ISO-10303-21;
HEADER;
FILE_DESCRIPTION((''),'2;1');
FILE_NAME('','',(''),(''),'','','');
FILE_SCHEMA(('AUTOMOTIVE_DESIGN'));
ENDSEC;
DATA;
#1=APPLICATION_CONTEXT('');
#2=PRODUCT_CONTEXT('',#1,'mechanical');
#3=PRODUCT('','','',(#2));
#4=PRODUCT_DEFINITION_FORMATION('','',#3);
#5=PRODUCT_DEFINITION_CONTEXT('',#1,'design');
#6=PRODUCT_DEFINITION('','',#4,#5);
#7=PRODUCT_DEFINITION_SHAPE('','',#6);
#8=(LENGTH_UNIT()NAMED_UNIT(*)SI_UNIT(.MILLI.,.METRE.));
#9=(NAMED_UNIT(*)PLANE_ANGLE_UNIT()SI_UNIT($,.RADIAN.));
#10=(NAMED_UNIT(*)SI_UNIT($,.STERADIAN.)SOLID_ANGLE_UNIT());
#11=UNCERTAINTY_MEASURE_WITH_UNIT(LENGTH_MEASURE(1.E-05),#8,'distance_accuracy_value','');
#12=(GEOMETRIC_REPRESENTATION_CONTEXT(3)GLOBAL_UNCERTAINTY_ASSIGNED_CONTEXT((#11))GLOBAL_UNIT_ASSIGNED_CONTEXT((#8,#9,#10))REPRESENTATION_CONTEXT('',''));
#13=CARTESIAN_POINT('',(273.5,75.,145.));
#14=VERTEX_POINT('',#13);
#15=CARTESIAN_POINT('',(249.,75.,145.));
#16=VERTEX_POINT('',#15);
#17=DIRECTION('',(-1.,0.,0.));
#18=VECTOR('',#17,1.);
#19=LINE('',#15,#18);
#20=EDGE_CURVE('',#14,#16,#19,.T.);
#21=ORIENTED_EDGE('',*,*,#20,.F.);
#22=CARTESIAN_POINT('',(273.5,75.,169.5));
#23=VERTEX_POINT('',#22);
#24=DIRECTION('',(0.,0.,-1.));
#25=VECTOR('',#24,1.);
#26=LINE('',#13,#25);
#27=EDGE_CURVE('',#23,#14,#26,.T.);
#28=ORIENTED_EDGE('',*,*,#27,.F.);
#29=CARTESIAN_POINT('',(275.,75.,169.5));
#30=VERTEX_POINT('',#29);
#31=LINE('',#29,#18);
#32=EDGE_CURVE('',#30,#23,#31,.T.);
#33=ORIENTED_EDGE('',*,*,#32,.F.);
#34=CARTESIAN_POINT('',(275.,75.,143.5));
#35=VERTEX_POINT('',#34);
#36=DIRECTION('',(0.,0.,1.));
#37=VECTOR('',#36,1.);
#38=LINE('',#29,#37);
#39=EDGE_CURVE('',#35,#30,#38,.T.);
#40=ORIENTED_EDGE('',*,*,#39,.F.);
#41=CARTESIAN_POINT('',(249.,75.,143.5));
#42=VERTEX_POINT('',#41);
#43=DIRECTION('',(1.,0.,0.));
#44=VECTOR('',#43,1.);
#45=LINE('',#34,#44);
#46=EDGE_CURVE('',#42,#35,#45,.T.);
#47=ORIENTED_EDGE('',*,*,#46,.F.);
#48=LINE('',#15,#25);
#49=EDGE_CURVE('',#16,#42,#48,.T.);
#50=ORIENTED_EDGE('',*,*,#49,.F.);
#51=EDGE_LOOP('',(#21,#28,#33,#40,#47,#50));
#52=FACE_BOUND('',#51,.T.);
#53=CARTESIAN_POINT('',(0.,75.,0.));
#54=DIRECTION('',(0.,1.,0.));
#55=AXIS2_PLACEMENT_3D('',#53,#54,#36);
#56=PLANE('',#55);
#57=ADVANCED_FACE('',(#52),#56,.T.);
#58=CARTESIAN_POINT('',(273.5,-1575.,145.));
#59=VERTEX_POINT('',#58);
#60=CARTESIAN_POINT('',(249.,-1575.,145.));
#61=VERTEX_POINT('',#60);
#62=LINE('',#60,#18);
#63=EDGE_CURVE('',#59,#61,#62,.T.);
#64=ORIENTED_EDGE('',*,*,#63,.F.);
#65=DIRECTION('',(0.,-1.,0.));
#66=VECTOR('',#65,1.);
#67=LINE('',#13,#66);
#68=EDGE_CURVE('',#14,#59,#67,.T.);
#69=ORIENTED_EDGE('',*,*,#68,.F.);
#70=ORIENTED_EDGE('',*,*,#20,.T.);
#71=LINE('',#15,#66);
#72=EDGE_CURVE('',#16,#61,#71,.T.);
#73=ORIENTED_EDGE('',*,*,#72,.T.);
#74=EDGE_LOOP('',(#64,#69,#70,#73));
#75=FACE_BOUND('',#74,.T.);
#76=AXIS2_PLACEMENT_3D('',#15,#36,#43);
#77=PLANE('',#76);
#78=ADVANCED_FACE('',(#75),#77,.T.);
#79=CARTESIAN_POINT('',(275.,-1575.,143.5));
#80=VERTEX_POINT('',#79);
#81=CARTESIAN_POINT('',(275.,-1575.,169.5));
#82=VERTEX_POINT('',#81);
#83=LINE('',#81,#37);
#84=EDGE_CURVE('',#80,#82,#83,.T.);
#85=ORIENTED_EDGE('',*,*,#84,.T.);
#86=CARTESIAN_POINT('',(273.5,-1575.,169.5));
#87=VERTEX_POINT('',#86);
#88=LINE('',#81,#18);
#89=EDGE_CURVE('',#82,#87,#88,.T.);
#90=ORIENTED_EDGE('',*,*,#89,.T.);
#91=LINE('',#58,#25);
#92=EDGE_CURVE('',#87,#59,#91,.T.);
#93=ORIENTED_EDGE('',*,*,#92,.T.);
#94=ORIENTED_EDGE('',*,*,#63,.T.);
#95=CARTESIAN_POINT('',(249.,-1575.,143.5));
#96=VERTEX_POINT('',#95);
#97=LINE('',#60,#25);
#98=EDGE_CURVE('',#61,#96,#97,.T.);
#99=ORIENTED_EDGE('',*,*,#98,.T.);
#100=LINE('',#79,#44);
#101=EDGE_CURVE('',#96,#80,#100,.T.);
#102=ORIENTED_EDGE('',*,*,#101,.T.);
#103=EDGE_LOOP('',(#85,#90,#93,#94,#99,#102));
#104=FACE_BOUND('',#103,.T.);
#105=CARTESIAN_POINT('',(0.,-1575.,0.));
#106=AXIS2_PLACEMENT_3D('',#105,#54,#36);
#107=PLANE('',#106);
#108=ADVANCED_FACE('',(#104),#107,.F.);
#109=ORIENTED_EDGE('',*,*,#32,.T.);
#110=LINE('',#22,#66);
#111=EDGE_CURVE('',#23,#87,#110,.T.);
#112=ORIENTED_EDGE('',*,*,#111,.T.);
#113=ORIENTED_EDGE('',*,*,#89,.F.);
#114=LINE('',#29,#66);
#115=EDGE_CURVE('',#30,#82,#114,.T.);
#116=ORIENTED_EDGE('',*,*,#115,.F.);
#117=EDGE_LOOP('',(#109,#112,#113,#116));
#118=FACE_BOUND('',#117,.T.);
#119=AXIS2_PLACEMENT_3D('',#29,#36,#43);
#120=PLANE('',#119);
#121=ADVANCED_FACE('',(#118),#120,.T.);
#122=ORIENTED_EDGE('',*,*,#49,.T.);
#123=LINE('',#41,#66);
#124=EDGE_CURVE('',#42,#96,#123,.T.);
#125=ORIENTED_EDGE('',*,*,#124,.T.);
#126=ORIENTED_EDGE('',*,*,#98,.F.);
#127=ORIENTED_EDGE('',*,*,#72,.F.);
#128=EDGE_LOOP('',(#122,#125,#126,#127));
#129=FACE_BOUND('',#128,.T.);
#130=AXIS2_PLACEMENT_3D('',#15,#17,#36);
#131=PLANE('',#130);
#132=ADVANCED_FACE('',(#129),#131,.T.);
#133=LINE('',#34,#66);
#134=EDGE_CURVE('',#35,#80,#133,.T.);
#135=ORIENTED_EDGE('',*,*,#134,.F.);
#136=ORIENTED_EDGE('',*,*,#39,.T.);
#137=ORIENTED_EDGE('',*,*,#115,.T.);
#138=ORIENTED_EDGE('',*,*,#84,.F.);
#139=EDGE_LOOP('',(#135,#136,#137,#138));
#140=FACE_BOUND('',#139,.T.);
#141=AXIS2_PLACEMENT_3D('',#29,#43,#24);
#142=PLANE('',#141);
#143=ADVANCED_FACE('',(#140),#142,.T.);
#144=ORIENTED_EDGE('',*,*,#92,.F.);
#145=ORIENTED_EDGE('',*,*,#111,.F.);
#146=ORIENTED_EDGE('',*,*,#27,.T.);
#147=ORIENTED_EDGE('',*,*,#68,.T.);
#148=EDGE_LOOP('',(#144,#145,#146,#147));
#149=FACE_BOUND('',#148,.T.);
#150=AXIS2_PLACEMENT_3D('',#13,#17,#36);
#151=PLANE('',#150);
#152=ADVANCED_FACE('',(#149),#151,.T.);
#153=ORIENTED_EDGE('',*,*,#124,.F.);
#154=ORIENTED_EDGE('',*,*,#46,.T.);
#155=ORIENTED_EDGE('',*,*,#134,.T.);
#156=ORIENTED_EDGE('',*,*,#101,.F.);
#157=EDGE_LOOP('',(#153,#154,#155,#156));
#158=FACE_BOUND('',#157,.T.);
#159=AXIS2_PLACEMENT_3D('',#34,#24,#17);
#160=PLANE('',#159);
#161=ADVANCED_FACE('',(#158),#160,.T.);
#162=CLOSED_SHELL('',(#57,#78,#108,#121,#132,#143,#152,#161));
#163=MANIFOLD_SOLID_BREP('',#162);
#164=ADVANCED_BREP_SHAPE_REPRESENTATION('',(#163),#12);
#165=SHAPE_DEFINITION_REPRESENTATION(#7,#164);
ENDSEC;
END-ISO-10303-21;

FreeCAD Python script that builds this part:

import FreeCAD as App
import Part
import Sketcher

V = App.Vector
Q = App.Units.Quantity


def add_polygon(sketch, points):
    """Adds a closed chain of lines whose ends are joined by coincident constraints."""
    first, n = sketch.GeometryCount, len(points)
    for a, b in zip(points, points[1:] + points[:1]):
        sketch.addGeometry(Part.LineSegment(App.Vector(*a, 0), App.Vector(*b, 0)), False)
    for i in range(n):
        sketch.addConstraint(Sketcher.Constraint("Coincident", first + i, 2, first + (i + 1) % n, 1))

doc = App.newDocument("Part")
body = doc.addObject("PartDesign::Body", "Body")

sketch1 = body.newObject("Sketcher::SketchObject", "Sketch")
sketch1.AttachmentSupport = (doc.getObject("XZ_Plane"), [""])
sketch1.MapMode = "FlatFace"
sketch1.AttachmentOffset = App.Placement(V(0, 0, 750), App.Rotation())
add_polygon(sketch1, [(275, 169.5), (273.5, 169.5), (273.5, 145), (249, 145), (249, 143.5), (275, 143.5)])
sketch1.addConstraint(Sketcher.Constraint("Horizontal", 0))
sketch1.addConstraint(Sketcher.Constraint("Vertical", 1))
sketch1.addConstraint(Sketcher.Constraint("Horizontal", 2))
sketch1.addConstraint(Sketcher.Constraint("Vertical", 3))
sketch1.addConstraint(Sketcher.Constraint("Horizontal", 4))
sketch1.addConstraint(Sketcher.Constraint("Vertical", 5))
sketch1.addConstraint(Sketcher.Constraint("Equal", 2, 1))
sketch1.addConstraint(Sketcher.Constraint("Equal", 0, 3))
sketch1.addConstraint(Sketcher.Constraint("DistanceX", 4, 1, 4, 2, Q("26 mm")))
sketch1.addConstraint(Sketcher.Constraint("DistanceX", 0, 2, 0, 1, Q("1.5 mm")))
sketch1.addConstraint(Sketcher.Constraint("DistanceY", -1, 1, 1, 2, Q("145 mm")))
sketch1.addConstraint(Sketcher.Constraint("DistanceX", -1, 1, 2, 2, Q("249 mm")))
pad1 = body.newObject("PartDesign::Pad", "Pad")
pad1.Profile = sketch1
pad1.Length = 1650
pad1.Midplane = True

doc.recompute()
